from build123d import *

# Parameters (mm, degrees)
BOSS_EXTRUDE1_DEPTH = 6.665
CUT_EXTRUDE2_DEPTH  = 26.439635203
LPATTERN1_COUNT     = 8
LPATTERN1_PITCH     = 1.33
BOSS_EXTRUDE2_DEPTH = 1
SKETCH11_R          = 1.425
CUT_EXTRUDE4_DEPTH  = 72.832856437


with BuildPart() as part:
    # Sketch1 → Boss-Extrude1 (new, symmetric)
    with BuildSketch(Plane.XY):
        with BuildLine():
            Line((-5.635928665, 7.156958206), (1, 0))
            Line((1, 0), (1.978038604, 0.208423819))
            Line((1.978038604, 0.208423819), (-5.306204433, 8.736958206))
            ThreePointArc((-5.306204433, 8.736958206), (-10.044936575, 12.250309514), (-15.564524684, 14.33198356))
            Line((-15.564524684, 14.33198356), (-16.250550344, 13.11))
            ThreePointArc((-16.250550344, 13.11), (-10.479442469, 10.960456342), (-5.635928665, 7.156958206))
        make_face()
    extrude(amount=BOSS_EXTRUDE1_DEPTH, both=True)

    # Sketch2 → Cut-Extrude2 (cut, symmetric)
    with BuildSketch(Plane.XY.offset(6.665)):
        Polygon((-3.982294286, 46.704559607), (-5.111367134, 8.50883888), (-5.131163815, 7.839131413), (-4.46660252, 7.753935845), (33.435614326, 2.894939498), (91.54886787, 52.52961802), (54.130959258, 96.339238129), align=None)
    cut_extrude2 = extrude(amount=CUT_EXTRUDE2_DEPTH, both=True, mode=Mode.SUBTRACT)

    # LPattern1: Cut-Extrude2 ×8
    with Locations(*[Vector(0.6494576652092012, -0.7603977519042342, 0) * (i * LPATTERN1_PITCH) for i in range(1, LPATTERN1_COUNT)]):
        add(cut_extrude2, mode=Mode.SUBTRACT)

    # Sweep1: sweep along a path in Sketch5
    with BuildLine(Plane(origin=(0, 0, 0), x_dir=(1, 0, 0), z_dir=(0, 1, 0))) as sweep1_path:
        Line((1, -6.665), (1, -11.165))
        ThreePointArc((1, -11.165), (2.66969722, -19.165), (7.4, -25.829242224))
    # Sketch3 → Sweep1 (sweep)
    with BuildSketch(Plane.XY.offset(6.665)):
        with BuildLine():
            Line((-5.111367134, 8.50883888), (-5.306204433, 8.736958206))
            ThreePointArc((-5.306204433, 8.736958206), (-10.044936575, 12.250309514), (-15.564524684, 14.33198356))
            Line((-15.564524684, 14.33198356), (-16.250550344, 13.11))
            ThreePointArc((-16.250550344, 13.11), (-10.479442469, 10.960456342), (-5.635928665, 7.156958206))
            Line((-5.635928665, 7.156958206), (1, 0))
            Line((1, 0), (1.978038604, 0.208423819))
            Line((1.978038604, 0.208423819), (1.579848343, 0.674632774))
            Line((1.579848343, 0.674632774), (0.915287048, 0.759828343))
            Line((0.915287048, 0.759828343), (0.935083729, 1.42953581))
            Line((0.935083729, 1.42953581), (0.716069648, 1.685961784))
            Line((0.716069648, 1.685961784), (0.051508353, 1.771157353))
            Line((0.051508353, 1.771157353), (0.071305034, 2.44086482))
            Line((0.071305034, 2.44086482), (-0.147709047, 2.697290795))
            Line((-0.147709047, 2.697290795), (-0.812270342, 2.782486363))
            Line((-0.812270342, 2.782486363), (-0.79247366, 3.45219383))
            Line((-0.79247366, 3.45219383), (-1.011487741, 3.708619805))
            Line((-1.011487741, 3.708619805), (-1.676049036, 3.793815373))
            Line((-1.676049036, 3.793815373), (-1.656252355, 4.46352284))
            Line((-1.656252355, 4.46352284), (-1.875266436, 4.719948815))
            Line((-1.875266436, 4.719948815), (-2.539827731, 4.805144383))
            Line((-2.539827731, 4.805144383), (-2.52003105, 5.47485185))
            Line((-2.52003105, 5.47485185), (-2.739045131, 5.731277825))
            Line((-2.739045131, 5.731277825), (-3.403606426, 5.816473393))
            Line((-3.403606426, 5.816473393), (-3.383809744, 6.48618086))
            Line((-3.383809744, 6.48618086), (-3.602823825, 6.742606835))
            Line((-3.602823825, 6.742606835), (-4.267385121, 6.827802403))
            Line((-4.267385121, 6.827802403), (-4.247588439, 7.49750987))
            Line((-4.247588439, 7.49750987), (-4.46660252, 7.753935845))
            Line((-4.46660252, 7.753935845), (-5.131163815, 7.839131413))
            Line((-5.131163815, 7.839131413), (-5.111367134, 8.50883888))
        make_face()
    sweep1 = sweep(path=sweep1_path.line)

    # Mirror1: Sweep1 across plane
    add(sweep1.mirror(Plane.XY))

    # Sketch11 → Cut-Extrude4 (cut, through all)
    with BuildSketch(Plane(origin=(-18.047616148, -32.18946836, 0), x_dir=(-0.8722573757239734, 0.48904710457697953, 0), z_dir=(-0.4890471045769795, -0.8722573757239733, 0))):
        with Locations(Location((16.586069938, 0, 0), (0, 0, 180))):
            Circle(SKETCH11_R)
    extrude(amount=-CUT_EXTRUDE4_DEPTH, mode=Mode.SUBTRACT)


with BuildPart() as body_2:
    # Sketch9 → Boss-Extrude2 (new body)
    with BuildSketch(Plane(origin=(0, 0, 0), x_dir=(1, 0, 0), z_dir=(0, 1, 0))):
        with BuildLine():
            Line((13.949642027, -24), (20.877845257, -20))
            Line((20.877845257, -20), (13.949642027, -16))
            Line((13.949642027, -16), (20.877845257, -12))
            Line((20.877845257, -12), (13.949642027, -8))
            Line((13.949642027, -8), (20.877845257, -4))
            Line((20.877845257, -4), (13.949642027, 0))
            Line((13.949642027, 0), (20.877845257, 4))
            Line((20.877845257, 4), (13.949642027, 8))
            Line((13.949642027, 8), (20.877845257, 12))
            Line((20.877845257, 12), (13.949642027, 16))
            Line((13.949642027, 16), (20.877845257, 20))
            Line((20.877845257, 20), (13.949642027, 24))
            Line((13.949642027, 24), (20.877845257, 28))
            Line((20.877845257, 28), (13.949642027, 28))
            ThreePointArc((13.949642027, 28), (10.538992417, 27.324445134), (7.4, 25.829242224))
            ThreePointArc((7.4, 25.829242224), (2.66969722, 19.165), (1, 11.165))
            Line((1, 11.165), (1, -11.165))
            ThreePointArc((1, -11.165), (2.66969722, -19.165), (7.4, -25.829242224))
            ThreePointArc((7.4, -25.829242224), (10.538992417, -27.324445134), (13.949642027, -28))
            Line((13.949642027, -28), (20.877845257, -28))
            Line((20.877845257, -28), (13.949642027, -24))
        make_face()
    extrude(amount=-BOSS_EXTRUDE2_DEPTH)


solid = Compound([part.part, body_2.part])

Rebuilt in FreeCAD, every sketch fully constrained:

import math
import FreeCAD as App
import Part
import Sketcher
from FreeCAD import Vector
Q = App.Units.Quantity


def add_polygon(sketch, points):
    """Adds a closed chain of lines whose ends are joined by coincident constraints."""
    first, n = sketch.GeometryCount, len(points)
    for a, b in zip(points, points[1:] + points[:1]):
        sketch.addGeometry(Part.LineSegment(App.Vector(*a, 0), App.Vector(*b, 0)), False)
    for i in range(n):
        sketch.addConstraint(Sketcher.Constraint("Coincident", first + i, 2, first + (i + 1) % n, 1))

doc = App.newDocument("Part")
body = doc.addObject("PartDesign::Body", "Body")

# Sketch on XY plane
sketch1 = body.newObject("Sketcher::SketchObject", "Sketch")
sketch1.AttachmentSupport = (doc.getObject("XY_Plane"), [""])
sketch1.MapMode = "FlatFace"
sketch1.addGeometry([
    Part.LineSegment(Vector(-5.635929, 7.156958, 0), Vector(1, 0, 0)),  # 0
    Part.LineSegment(Vector(1, 0, 0), Vector(1.978039, 0.208424, 0)),  # 1
    Part.LineSegment(Vector(1.978039, 0.208424, 0), Vector(-5.306204, 8.736958, 0)),  # 2
    Part.ArcOfCircle(Part.Circle(Vector(-20.262584, -6.483458, 0), Vector(0, 0, 1), 21.339034), math.radians(45.501305), math.radians(77.28141)),  # 3
    Part.LineSegment(Vector(-15.564525, 14.331984, 0), Vector(-16.25055, 13.11, 0)),  # 4
    Part.ArcOfCircle(Part.Circle(Vector(-20.262584, -6.483458, 0), Vector(0, 0, 1), 20), math.radians(43.001758), math.radians(78.427853)),  # 5
], False)
sketch1.addConstraint([
    Sketcher.Constraint("Coincident", 0, 2, 1, 1),
    Sketcher.Constraint("Coincident", 1, 2, 2, 1),
    Sketcher.Constraint("Coincident", 2, 2, 3, 1),
    Sketcher.Constraint("Coincident", 3, 2, 4, 1),
    Sketcher.Constraint("Coincident", 4, 2, 5, 2),
    Sketcher.Constraint("Coincident", 5, 1, 0, 1),
    Sketcher.Constraint("Coincident", 5, 3, 3, 3),
    Sketcher.Constraint("PointOnObject", 0, 2, -1),
    Sketcher.Constraint("Radius", 5, 20.0),
    Sketcher.Constraint("Distance", 1, 1.0),
    Sketcher.Constraint("DistanceX", -1, 1, 0, 2, 1.0),
    Sketcher.Constraint("Angle", 1, Q("12.03 deg")),
    Sketcher.Constraint("Angle", 4, Q("-119.31 deg")),
    Sketcher.Constraint("Distance", 0, 9.76),
    Sketcher.Constraint("DistanceY", -1, 1, 4, 2, 13.11),
    Sketcher.Constraint("DistanceY", 5, 1, 2, 2, 1.58),
    Sketcher.Constraint("Radius", 3, 21.339034),
    Sketcher.Constraint("DistanceY", -1, 1, 2, 2, 8.736958),
    Sketcher.Constraint("DistanceX", 4, 2, -1, 1, 16.25055),
])
pad1 = body.newObject("PartDesign::Pad", "Pad")
pad1.Profile = sketch1
pad1.Length = 13.33
pad1.Midplane = True

# Sketch on XY plane
sketch2 = body.newObject("Sketcher::SketchObject", "Sketch001")
sketch2.AttachmentSupport = (doc.getObject("XY_Plane"), [""])
sketch2.MapMode = "FlatFace"
sketch2.AttachmentOffset = App.Placement(Vector(0, 0, 6.665), App.Rotation())
add_polygon(sketch2, [(-3.982294, 46.70456), (-5.111367, 8.508839), (-5.131164, 7.839131), (-4.466603, 7.753936), (33.435614, 2.894939), (91.548868, 52.529618), (54.130959, 96.339238)])  # lines 0-6
sketch2.addConstraint([
    Sketcher.Constraint("Parallel", 0, 1),
    Sketcher.Constraint("Parallel", 2, 3),
    Sketcher.Constraint("Perpendicular", 4, 5),
    Sketcher.Constraint("Perpendicular", 5, 6),
    Sketcher.Constraint("Equal", 1, 2),
    Sketcher.Constraint("Equal", 0, 3),
    Sketcher.Constraint("Equal", 4, 6),
    Sketcher.Constraint("Distance", 1, 0.67),
    Sketcher.Constraint("DistanceY", 3, 2, 0, 2, 5.613899),
    Sketcher.Constraint("DistanceY", 3, 2, 5, 2, 93.444299),
    Sketcher.Constraint("Distance", 4, 76.42481),
    Sketcher.Constraint("DistanceY", -1, 1, 0, 2, 8.508839),
    Sketcher.Constraint("DistanceY", -1, 1, 4, 2, 52.529618),
    Sketcher.Constraint("DistanceX", -1, 1, 5, 2, 54.130959),
])
pocket1 = body.newObject("PartDesign::Pocket", "Pocket")
pocket1.Profile = sketch2
pocket1.Length = 52.87927
pocket1.Midplane = True
doc.recompute()

datumline = body.newObject("PartDesign::Line", "DatumLine")
datumline.Placement = App.Placement(Vector(0, 0, 0), App.Rotation(Vector(0, 0, 1), Vector(0.649457665, -0.760397752, 0)))
linearpattern = body.newObject("PartDesign::LinearPattern", "LinearPattern")
linearpattern.Originals = [pocket1]
linearpattern.Direction = (datumline, [""])
linearpattern.Mode = "offset"
linearpattern.Offset = 1.33
linearpattern.Occurrences = 8
body.Tip = linearpattern

# Sketch on XY plane
sketch3 = body.newObject("Sketcher::SketchObject", "Sketch002")
sketch3.AttachmentSupport = (doc.getObject("XY_Plane"), [""])
sketch3.MapMode = "FlatFace"
sketch3.AttachmentOffset = App.Placement(Vector(0, 0, 6.665), App.Rotation())
sketch3.addGeometry([
    Part.LineSegment(Vector(-5.111367, 8.508839, 0), Vector(-5.306204, 8.736958, 0)),  # 0
    Part.ArcOfCircle(Part.Circle(Vector(-20.262584, -6.483458, 0), Vector(0, 0, 1), 21.339034), math.radians(45.501305), math.radians(77.28141)),  # 1
    Part.LineSegment(Vector(-15.564525, 14.331984, 0), Vector(-16.25055, 13.11, 0)),  # 2
    Part.ArcOfCircle(Part.Circle(Vector(-20.262584, -6.483458, 0), Vector(0, 0, 1), 20), math.radians(43.001758), math.radians(78.427853)),  # 3
    Part.LineSegment(Vector(-5.635929, 7.156958, 0), Vector(1, 0, 0)),  # 4
    Part.LineSegment(Vector(1, 0, 0), Vector(1.978039, 0.208424, 0)),  # 5
    Part.LineSegment(Vector(1.978039, 0.208424, 0), Vector(1.579848, 0.674633, 0)),  # 6
    Part.LineSegment(Vector(1.579848, 0.674633, 0), Vector(0.915287, 0.759828, 0)),  # 7
    Part.LineSegment(Vector(0.915287, 0.759828, 0), Vector(0.935084, 1.429536, 0)),  # 8
    Part.LineSegment(Vector(0.935084, 1.429536, 0), Vector(0.71607, 1.685962, 0)),  # 9
    Part.LineSegment(Vector(0.71607, 1.685962, 0), Vector(0.051508, 1.771157, 0)),  # 10
    Part.LineSegment(Vector(0.051508, 1.771157, 0), Vector(0.071305, 2.440865, 0)),  # 11
    Part.LineSegment(Vector(0.071305, 2.440865, 0), Vector(-0.147709, 2.697291, 0)),  # 12
    Part.LineSegment(Vector(-0.147709, 2.697291, 0), Vector(-0.81227, 2.782486, 0)),  # 13
    Part.LineSegment(Vector(-0.81227, 2.782486, 0), Vector(-0.792474, 3.452194, 0)),  # 14
    Part.LineSegment(Vector(-0.792474, 3.452194, 0), Vector(-1.011488, 3.70862, 0)),  # 15
    Part.LineSegment(Vector(-1.011488, 3.70862, 0), Vector(-1.676049, 3.793815, 0)),  # 16
    Part.LineSegment(Vector(-1.676049, 3.793815, 0), Vector(-1.656252, 4.463523, 0)),  # 17
    Part.LineSegment(Vector(-1.656252, 4.463523, 0), Vector(-1.875266, 4.719949, 0)),  # 18
    Part.LineSegment(Vector(-1.875266, 4.719949, 0), Vector(-2.539828, 4.805144, 0)),  # 19
    Part.LineSegment(Vector(-2.539828, 4.805144, 0), Vector(-2.520031, 5.474852, 0)),  # 20
    Part.LineSegment(Vector(-2.520031, 5.474852, 0), Vector(-2.739045, 5.731278, 0)),  # 21
    Part.LineSegment(Vector(-2.739045, 5.731278, 0), Vector(-3.403606, 5.816473, 0)),  # 22
    Part.LineSegment(Vector(-3.403606, 5.816473, 0), Vector(-3.38381, 6.486181, 0)),  # 23
    Part.LineSegment(Vector(-3.38381, 6.486181, 0), Vector(-3.602824, 6.742607, 0)),  # 24
    Part.LineSegment(Vector(-3.602824, 6.742607, 0), Vector(-4.267385, 6.827802, 0)),  # 25
    Part.LineSegment(Vector(-4.267385, 6.827802, 0), Vector(-4.247588, 7.49751, 0)),  # 26
    Part.LineSegment(Vector(-4.247588, 7.49751, 0), Vector(-4.466603, 7.753936, 0)),  # 27
    Part.LineSegment(Vector(-4.466603, 7.753936, 0), Vector(-5.131164, 7.839131, 0)),  # 28
    Part.LineSegment(Vector(-5.131164, 7.839131, 0), Vector(-5.111367, 8.508839, 0)),  # 29
], False)
sketch3.addConstraint([
    Sketcher.Constraint("Coincident", 0, 2, 1, 1),
    Sketcher.Constraint("Coincident", 1, 2, 2, 1),
    Sketcher.Constraint("Coincident", 2, 2, 3, 2),
    Sketcher.Constraint("Coincident", 3, 1, 4, 1),
    Sketcher.Constraint("Coincident", 4, 2, 5, 1),
    Sketcher.Constraint("Coincident", 5, 2, 6, 1),
    Sketcher.Constraint("Coincident", 6, 2, 7, 1),
    Sketcher.Constraint("Coincident", 7, 2, 8, 1),
    Sketcher.Constraint("Coincident", 8, 2, 9, 1),
    Sketcher.Constraint("Coincident", 9, 2, 10, 1),
    Sketcher.Constraint("Coincident", 10, 2, 11, 1),
    Sketcher.Constraint("Coincident", 11, 2, 12, 1),
    Sketcher.Constraint("Coincident", 12, 2, 13, 1),
    Sketcher.Constraint("Coincident", 13, 2, 14, 1),
    Sketcher.Constraint("Coincident", 14, 2, 15, 1),
    Sketcher.Constraint("Coincident", 15, 2, 16, 1),
    Sketcher.Constraint("Coincident", 16, 2, 17, 1),
    Sketcher.Constraint("Coincident", 17, 2, 18, 1),
    Sketcher.Constraint("Coincident", 18, 2, 19, 1),
    Sketcher.Constraint("Coincident", 19, 2, 20, 1),
    Sketcher.Constraint("Coincident", 20, 2, 21, 1),
    Sketcher.Constraint("Coincident", 21, 2, 22, 1),
    Sketcher.Constraint("Coincident", 22, 2, 23, 1),
    Sketcher.Constraint("Coincident", 23, 2, 24, 1),
    Sketcher.Constraint("Coincident", 24, 2, 25, 1),
    Sketcher.Constraint("Coincident", 25, 2, 26, 1),
    Sketcher.Constraint("Coincident", 26, 2, 27, 1),
    Sketcher.Constraint("Coincident", 27, 2, 28, 1),
    Sketcher.Constraint("Coincident", 28, 2, 29, 1),
    Sketcher.Constraint("Coincident", 29, 2, 0, 1),
    Sketcher.Constraint("Coincident", 3, 3, 1, 3),
    Sketcher.Constraint("PointOnObject", 4, 2, -1),
    Sketcher.Constraint("Parallel", 0, 6),
    Sketcher.Constraint("Parallel", 6, 9),
    Sketcher.Constraint("Parallel", 7, 10),
    Sketcher.Constraint("Parallel", 8, 11),
    Sketcher.Constraint("Parallel", 9, 12),
    Sketcher.Constraint("Parallel", 10, 13),
    Sketcher.Constraint("Parallel", 11, 14),
    Sketcher.Constraint("Parallel", 12, 15),
    Sketcher.Constraint("Parallel", 13, 16),
    Sketcher.Constraint("Parallel", 14, 17),
    Sketcher.Constraint("Parallel", 15, 18),
    Sketcher.Constraint("Parallel", 16, 19),
    Sketcher.Constraint("Parallel", 17, 20),
    Sketcher.Constraint("Parallel", 18, 21),
    Sketcher.Constraint("Parallel", 19, 22),
    Sketcher.Constraint("Parallel", 20, 23),
    Sketcher.Constraint("Parallel", 21, 24),
    Sketcher.Constraint("Parallel", 22, 25),
    Sketcher.Constraint("Parallel", 23, 26),
    Sketcher.Constraint("Parallel", 24, 27),
    Sketcher.Constraint("Parallel", 25, 28),
    Sketcher.Constraint("Parallel", 26, 29),
    Sketcher.Constraint("Equal", 7, 8),
    Sketcher.Constraint("Equal", 8, 10),
    Sketcher.Constraint("Equal", 10, 11),
    Sketcher.Constraint("Equal", 9, 12),
    Sketcher.Constraint("Equal", 11, 13),
    Sketcher.Constraint("Equal", 13, 14),
    Sketcher.Constraint("Equal", 12, 15),
    Sketcher.Constraint("Equal", 14, 16),
    Sketcher.Constraint("Equal", 16, 17),
    Sketcher.Constraint("Equal", 15, 18),
    Sketcher.Constraint("Equal", 17, 19),
    Sketcher.Constraint("Equal", 19, 20),
    Sketcher.Constraint("Equal", 18, 21),
    Sketcher.Constraint("Equal", 20, 22),
    Sketcher.Constraint("Equal", 22, 23),
    Sketcher.Constraint("Equal", 21, 24),
    Sketcher.Constraint("Equal", 23, 25),
    Sketcher.Constraint("Equal", 25, 26),
    Sketcher.Constraint("Equal", 24, 27),
    Sketcher.Constraint("Equal", 26, 28),
    Sketcher.Constraint("Equal", 28, 29),
    Sketcher.Constraint("Radius", 3, 20.0),
    Sketcher.Constraint("Distance", 5, 1.0),
    Sketcher.Constraint("DistanceX", -1, 1, 4, 2, 1.0),
    Sketcher.Constraint("Distance", 0, 0.3),
    Sketcher.Constraint("Angle", 2, Q("-119.31 deg")),
    Sketcher.Constraint("Angle", 5, Q("12.03 deg")),
    Sketcher.Constraint("Distance", 4, 9.76),
    Sketcher.Constraint("Distance", 7, 0.67),
    Sketcher.Constraint("DistanceY", -1, 1, 2, 2, 13.11),
    Sketcher.Constraint("DistanceY", 3, 1, 0, 2, 1.58),
    Sketcher.Constraint("Radius", 1, 21.339034),
    Sketcher.Constraint("DistanceX", 2, 2, 6, 2, 17.830399),
    Sketcher.Constraint("DistanceX", 0, 2, 27, 2, 0.839602),
    Sketcher.Constraint("Distance", 6, 0.613112),
    Sketcher.Constraint("DistanceY", -1, 1, 0, 2, 8.736958),
    Sketcher.Constraint("DistanceX", 2, 2, -1, 1, 16.25055),
])

# Sketch on XZ plane
sketch4 = body.newObject("Sketcher::SketchObject", "Sketch003")
sketch4.AttachmentSupport = (doc.getObject("XZ_Plane"), [""])
sketch4.MapMode = "FlatFace"
sketch4.addGeometry([
    Part.LineSegment(Vector(1, 6.665, 0), Vector(1, 11.165, 0)),
    Part.ArcOfCircle(Part.Circle(Vector(21, 11.165, 0), Vector(0, 0, 1), 20), math.radians(132.843643), math.radians(180)),
], False)
sketch4.addConstraint([
    Sketcher.Constraint("Tangent", 0, 2, 1, 2),
    Sketcher.Constraint("Vertical", 0),
    Sketcher.Constraint("Radius", 1, 20.0),
    Sketcher.Constraint("DistanceY", 0, 1, 0, 2, 4.5),
    Sketcher.Constraint("DistanceX", -1, 1, 1, 3, 21.0),
    Sketcher.Constraint("DistanceX", -1, 1, 1, 1, 7.4),
    Sketcher.Constraint("DistanceY", -1, 1, 1, 3, 11.165),
])
doc.recompute()

additivepipe = body.newObject("PartDesign::AdditivePipe", "AdditivePipe")
additivepipe.Profile = sketch3
additivepipe.Spine = (sketch4, ["Edge1", "Edge2"])
doc.recompute()

mirrored = body.newObject("PartDesign::Mirrored", "Mirrored")
mirrored.Originals = [additivepipe]
mirrored.MirrorPlane = (doc.getObject("XY_Plane"), [""])
body.Tip = mirrored

# Sketch on an angled plane
sketch5 = body.newObject("Sketcher::SketchObject", "Sketch004")
sketch5.Placement = App.Placement(Vector(-18.047616, -32.189468, 0), App.Rotation(Vector(-0.872257376, 0.489047105, 0), Vector(0, 0, -1.000000001), Vector(-0.489047105, -0.872257376, 0), "ZXY"))
sketch5.addGeometry(Part.Circle(Vector(16.58607, 0, 0), Vector(0, 0, 1), 1.425), False)
sketch5.addConstraint([
    Sketcher.Constraint("PointOnObject", 0, 3, -1),
    Sketcher.Constraint("Diameter", 0, 2.85),
    Sketcher.Constraint("DistanceX", -1, 1, 0, 3, 16.58607),
])
pocket2 = body.newObject("PartDesign::Pocket", "Pocket001")
pocket2.Profile = sketch5
pocket2.Type = "ThroughAll"
body2 = doc.addObject("PartDesign::Body", "Body001")

# Sketch on XZ plane
sketch6 = body2.newObject("Sketcher::SketchObject", "Sketch005")
sketch6.AttachmentSupport = (doc.getObject("XZ_Plane001"), [""])
sketch6.MapMode = "FlatFace"
sketch6.addGeometry([
    Part.LineSegment(Vector(13.949642, 24, 0), Vector(20.877845, 20, 0)),  # 0
    Part.LineSegment(Vector(20.877845, 20, 0), Vector(13.949642, 16, 0)),  # 1
    Part.LineSegment(Vector(13.949642, 16, 0), Vector(20.877845, 12, 0)),  # 2
    Part.LineSegment(Vector(20.877845, 12, 0), Vector(13.949642, 8, 0)),  # 3
    Part.LineSegment(Vector(13.949642, 8, 0), Vector(20.877845, 4, 0)),  # 4
    Part.LineSegment(Vector(20.877845, 4, 0), Vector(13.949642, 0, 0)),  # 5
    Part.LineSegment(Vector(13.949642, 0, 0), Vector(20.877845, -4, 0)),  # 6
    Part.LineSegment(Vector(20.877845, -4, 0), Vector(13.949642, -8, 0)),  # 7
    Part.LineSegment(Vector(13.949642, -8, 0), Vector(20.877845, -12, 0)),  # 8
    Part.LineSegment(Vector(20.877845, -12, 0), Vector(13.949642, -16, 0)),  # 9
    Part.LineSegment(Vector(13.949642, -16, 0), Vector(20.877845, -20, 0)),  # 10
    Part.LineSegment(Vector(20.877845, -20, 0), Vector(13.949642, -24, 0)),  # 11
    Part.LineSegment(Vector(13.949642, -24, 0), Vector(20.877845, -28, 0)),  # 12
    Part.LineSegment(Vector(20.877845, -28, 0), Vector(13.949642, -28, 0)),  # 13
    Part.ArcOfCircle(Part.Circle(Vector(14.943428, -14.035316, 0), Vector(0, 0, 1), 14), math.radians(-122.603097), math.radians(-94.07055)),  # 14
    Part.ArcOfCircle(Part.Circle(Vector(21, -11.165, 0), Vector(0, 0, 1), 20), math.radians(180), math.radians(227.156357)),  # 15
    Part.LineSegment(Vector(1, -11.165, 0), Vector(1, 11.165, 0)),  # 16
    Part.ArcOfCircle(Part.Circle(Vector(21, 11.165, 0), Vector(0, 0, 1), 20), math.radians(132.843643), math.radians(180)),  # 17
    Part.ArcOfCircle(Part.Circle(Vector(14.943428, 14.035316, 0), Vector(0, 0, 1), 14), math.radians(94.07055), math.radians(122.603097)),  # 18
    Part.LineSegment(Vector(13.949642, 28, 0), Vector(20.877845, 28, 0)),  # 19
    Part.LineSegment(Vector(20.877845, 28, 0), Vector(13.949642, 24, 0)),  # 20
], False)
sketch6.addConstraint([
    Sketcher.Constraint("Coincident", 0, 2, 1, 1),
    Sketcher.Constraint("Coincident", 1, 2, 2, 1),
    Sketcher.Constraint("Coincident", 2, 2, 3, 1),
    Sketcher.Constraint("Coincident", 3, 2, 4, 1),
    Sketcher.Constraint("Coincident", 4, 2, 5, 1),
    Sketcher.Constraint("Coincident", 5, 2, 6, 1),
    Sketcher.Constraint("Coincident", 6, 2, 7, 1),
    Sketcher.Constraint("Coincident", 7, 2, 8, 1),
    Sketcher.Constraint("Coincident", 8, 2, 9, 1),
    Sketcher.Constraint("Coincident", 9, 2, 10, 1),
    Sketcher.Constraint("Coincident", 10, 2, 11, 1),
    Sketcher.Constraint("Coincident", 11, 2, 12, 1),
    Sketcher.Constraint("Coincident", 12, 2, 13, 1),
    Sketcher.Constraint("Coincident", 13, 2, 14, 2),
    Sketcher.Constraint("Coincident", 14, 1, 15, 2),
    Sketcher.Constraint("Tangent", 15, 1, 16, 1),
    Sketcher.Constraint("Tangent", 16, 2, 17, 2),
    Sketcher.Constraint("Coincident", 17, 1, 18, 2),
    Sketcher.Constraint("Coincident", 18, 1, 19, 1),
    Sketcher.Constraint("Coincident", 19, 2, 20, 1),
    Sketcher.Constraint("Coincident", 20, 2, 0, 1),
    Sketcher.Constraint("Horizontal", 13),
    Sketcher.Constraint("Vertical", 16),
    Sketcher.Constraint("Horizontal", 19),
    Sketcher.Constraint("Equal", 15, 17),
    Sketcher.Constraint("Equal", 14, 18),
    Sketcher.Constraint("Symmetric", 14, 3, 18, 3, -1),
    Sketcher.Constraint("Symmetric", 4, 2, 6, 2, -1),
    Sketcher.Constraint("Symmetric", 3, 2, 7, 2, -1),
    Sketcher.Constraint("Symmetric", 2, 2, 8, 2, -1),
    Sketcher.Constraint("Symmetric", 1, 2, 9, 2, -1),
    Sketcher.Constraint("Symmetric", 0, 2, 10, 2, -1),
    Sketcher.Constraint("Symmetric", 12, 2, 19, 2, -1),
    Sketcher.Constraint("Symmetric", 11, 2, 20, 2, -1),
    Sketcher.Constraint("PointOnObject", 5, 2, -1),
    Sketcher.Constraint("Parallel", 0, 2),
    Sketcher.Constraint("Parallel", 1, 3),
    Sketcher.Constraint("Parallel", 2, 4),
    Sketcher.Constraint("Parallel", 3, 5),
    Sketcher.Constraint("Parallel", 4, 6),
    Sketcher.Constraint("Parallel", 10, 12),
    Sketcher.Constraint("Vertical", 0, 2, 2, 2),
    Sketcher.Constraint("Vertical", 1, 2, 3, 2),
    Sketcher.Constraint("Vertical", 2, 2, 4, 2),
    Sketcher.Constraint("Vertical", 3, 2, 5, 2),
    Sketcher.Constraint("Vertical", 9, 2, 11, 2),
    Sketcher.Constraint("Vertical", 10, 2, 12, 2),
    Sketcher.Constraint("Vertical", 11, 2, 13, 2),
    Sketcher.Constraint("Vertical", 14, 1, 17, 1),
    Sketcher.Constraint("Radius", 14, 14.0),
    Sketcher.Constraint("Radius", 15, 20.0),
    Sketcher.Constraint("Angle", 0, Q("-30 deg")),
    Sketcher.Constraint("Distance", 0, 8.0),
    Sketcher.Constraint("DistanceX", -1, 1, 15, 3, 21.0),
    Sketcher.Constraint("DistanceY", 16, 1, 16, 2, 22.33),
    Sketcher.Constraint("DistanceX", -1, 1, 14, 1, 7.4),
    Sketcher.Constraint("DistanceX", -1, 1, 14, 3, 14.943428),
])
pad2 = body2.newObject("PartDesign::Pad", "Pad001")
pad2.Profile = sketch6
pad2.Length = 1

doc.recompute()
